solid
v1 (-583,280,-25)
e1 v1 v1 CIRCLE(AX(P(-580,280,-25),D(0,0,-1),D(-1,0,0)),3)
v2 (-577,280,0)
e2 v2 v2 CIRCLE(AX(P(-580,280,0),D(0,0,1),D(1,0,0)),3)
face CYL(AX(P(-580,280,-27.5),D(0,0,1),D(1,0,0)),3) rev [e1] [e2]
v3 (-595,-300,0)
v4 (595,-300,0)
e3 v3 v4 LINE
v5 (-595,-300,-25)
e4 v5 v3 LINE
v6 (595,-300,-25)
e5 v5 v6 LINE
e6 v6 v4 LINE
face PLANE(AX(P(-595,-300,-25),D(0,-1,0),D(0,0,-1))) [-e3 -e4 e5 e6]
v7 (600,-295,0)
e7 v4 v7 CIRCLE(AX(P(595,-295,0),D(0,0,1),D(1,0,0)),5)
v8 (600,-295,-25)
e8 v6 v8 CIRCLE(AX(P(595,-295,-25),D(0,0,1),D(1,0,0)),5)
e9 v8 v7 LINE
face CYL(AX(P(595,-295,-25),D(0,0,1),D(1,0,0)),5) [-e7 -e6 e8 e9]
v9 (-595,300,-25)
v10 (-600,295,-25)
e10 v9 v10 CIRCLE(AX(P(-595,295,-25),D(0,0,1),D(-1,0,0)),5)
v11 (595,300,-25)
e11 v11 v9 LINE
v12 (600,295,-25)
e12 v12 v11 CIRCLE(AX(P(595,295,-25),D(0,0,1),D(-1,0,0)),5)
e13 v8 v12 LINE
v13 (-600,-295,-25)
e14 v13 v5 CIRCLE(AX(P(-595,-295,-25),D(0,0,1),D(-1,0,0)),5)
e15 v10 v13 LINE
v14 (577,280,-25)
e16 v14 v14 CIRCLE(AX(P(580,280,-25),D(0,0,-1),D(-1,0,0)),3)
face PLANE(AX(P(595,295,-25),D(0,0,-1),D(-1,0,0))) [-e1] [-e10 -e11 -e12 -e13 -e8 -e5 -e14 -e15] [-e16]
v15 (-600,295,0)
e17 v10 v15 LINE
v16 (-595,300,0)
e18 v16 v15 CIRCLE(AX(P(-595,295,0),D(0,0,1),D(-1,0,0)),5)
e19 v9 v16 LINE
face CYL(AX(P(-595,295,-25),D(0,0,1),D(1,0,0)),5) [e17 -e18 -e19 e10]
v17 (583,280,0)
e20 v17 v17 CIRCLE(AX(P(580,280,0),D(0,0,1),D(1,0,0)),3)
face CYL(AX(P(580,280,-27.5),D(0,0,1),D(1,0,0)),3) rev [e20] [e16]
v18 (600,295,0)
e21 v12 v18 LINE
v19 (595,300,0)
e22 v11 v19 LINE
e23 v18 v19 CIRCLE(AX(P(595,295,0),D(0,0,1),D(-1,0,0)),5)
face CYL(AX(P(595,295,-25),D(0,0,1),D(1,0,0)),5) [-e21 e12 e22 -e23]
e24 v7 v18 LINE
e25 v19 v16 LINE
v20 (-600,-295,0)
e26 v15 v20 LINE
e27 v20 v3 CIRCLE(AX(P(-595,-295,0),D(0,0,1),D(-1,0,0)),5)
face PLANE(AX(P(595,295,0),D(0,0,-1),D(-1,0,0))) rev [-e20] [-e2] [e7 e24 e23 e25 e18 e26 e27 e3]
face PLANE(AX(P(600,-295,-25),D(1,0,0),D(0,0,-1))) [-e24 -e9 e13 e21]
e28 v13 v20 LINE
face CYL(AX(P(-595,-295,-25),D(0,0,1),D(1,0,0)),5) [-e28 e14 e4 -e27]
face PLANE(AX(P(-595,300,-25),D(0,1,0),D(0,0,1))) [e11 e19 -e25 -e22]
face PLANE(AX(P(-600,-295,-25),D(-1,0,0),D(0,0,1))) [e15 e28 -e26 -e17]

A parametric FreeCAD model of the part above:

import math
import FreeCAD as App
import Part
import Sketcher

V = App.Vector

doc = App.newDocument("Part")
body = doc.addObject("PartDesign::Body", "Body")

sketch1 = body.newObject("Sketcher::SketchObject", "Sketch")
sketch1.AttachmentSupport = (doc.getObject("XY_Plane"), [""])
sketch1.MapMode = "FlatFace"
sketch1.addGeometry([
    Part.LineSegment(V(-595, -300, 0), V(595, -300, 0)),
    Part.ArcOfCircle(Part.Circle(V(595, -295, 0), V(0, 0, 1), 5), math.radians(-90), math.radians(0)),
    Part.LineSegment(V(600, -295, 0), V(600, 295, 0)),
    Part.ArcOfCircle(Part.Circle(V(595, 295, 0), V(0, 0, 1), 5), math.radians(0), math.radians(90)),
    Part.LineSegment(V(595, 300, 0), V(-595, 300, 0)),
    Part.ArcOfCircle(Part.Circle(V(-595, 295, 0), V(0, 0, 1), 5), math.radians(90), math.radians(180)),
    Part.LineSegment(V(-600, 295, 0), V(-600, -295, 0)),
    Part.ArcOfCircle(Part.Circle(V(-595, -295, 0), V(0, 0, 1), 5), math.radians(180), math.radians(270)),
], False)
sketch1.addConstraint([
    Sketcher.Constraint("Tangent", 0, 2, 1, 1),
    Sketcher.Constraint("Tangent", 1, 2, 2, 1),
    Sketcher.Constraint("Tangent", 2, 2, 3, 1),
    Sketcher.Constraint("Tangent", 3, 2, 4, 1),
    Sketcher.Constraint("Tangent", 4, 2, 5, 1),
    Sketcher.Constraint("Tangent", 5, 2, 6, 1),
    Sketcher.Constraint("Tangent", 6, 2, 7, 1),
    Sketcher.Constraint("Tangent", 7, 2, 0, 1),
    Sketcher.Constraint("Horizontal", 0),
    Sketcher.Constraint("Vertical", 2),
    Sketcher.Constraint("Horizontal", 4),
    Sketcher.Constraint("Vertical", 6),
    Sketcher.Constraint("Equal", 1, 3),
    Sketcher.Constraint("Equal", 3, 5),
    Sketcher.Constraint("Equal", 5, 7),
    Sketcher.Constraint("Symmetric", 1, 3, 5, 3, -1, 1),
    Sketcher.Constraint("Radius", 1, 5.0),
    Sketcher.Constraint("DistanceX", 0, 1, 0, 2, 1190.0),
    Sketcher.Constraint("DistanceY", 2, 1, 2, 2, 590.0),
])
pad1 = body.newObject("PartDesign::Pad", "Pad")
pad1.Profile = sketch1
pad1.Length = 25
pad1.Reversed = True

sketch2 = body.newObject("Sketcher::SketchObject", "Sketch001")
sketch2.AttachmentSupport = (doc.getObject("XY_Plane"), [""])
sketch2.MapMode = "FlatFace"
sketch2.addGeometry([
    Part.Circle(V(580, 280, 0), V(0, 0, 1), 3),
    Part.Circle(V(-580, 280, 0), V(0, 0, 1), 3),
], False)
sketch2.addConstraint([
    Sketcher.Constraint("Equal", 0, 1),
    Sketcher.Constraint("Symmetric", 0, 3, 1, 3, -2),
    Sketcher.Constraint("Diameter", 0, 6.0),
    Sketcher.Constraint("DistanceX", -1, 1, 0, 3, 580.0),
    Sketcher.Constraint("DistanceY", -1, 1, 0, 3, 280.0),
])
pocket1 = body.newObject("PartDesign::Pocket", "Pocket")
pocket1.Profile = sketch2
pocket1.Length = 27.5

doc.recompute()
